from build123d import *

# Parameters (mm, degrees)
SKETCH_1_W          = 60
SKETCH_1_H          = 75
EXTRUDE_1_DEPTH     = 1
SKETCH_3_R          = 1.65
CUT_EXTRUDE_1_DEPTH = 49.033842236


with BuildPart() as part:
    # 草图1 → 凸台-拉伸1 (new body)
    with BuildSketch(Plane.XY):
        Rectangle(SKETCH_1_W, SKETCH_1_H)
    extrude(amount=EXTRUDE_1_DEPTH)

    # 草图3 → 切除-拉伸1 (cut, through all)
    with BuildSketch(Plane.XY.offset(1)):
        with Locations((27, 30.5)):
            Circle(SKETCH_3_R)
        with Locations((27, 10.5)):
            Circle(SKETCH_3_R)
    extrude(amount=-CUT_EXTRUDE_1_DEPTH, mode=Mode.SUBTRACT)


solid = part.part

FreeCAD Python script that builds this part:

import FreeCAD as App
import Part
import Sketcher
from FreeCAD import Vector
Q = App.Units.Quantity

doc = App.newDocument("Part")
params = doc.addObject("Spreadsheet::Sheet", "Params")
for row, (alias, value) in enumerate([
    ("sketch1_width", "60 mm"),
    ("sketch1_height", "75 mm"),
    ("pad1_length", "1 mm"),
    ("sketch2_diameter", "3.3 mm"),
], start=1):
    params.set(f"A{row}", alias)
    params.set(f"B{row}", "=" + value)
    params.setAlias(f"B{row}", alias)

body = doc.addObject("PartDesign::Body", "Body")

sketch1 = body.newObject("Sketcher::SketchObject", "Sketch")
sketch1.AttachmentSupport = (doc.getObject("XY_Plane"), [""])
sketch1.MapMode = "FlatFace"
sketch1.addGeometry([
    Part.LineSegment(Vector(-30, 38, 0), Vector(-30, -38, 0)),
    Part.LineSegment(Vector(-30, -38, 0), Vector(30, -38, 0)),
    Part.LineSegment(Vector(30, -38, 0), Vector(30, 38, 0)),
    Part.LineSegment(Vector(30, 38, 0), Vector(-30, 38, 0)),
], False)
sketch1.addConstraint([
    Sketcher.Constraint("Coincident", 0, 2, 1, 1),
    Sketcher.Constraint("Coincident", 1, 2, 2, 1),
    Sketcher.Constraint("Coincident", 2, 2, 3, 1),
    Sketcher.Constraint("Coincident", 3, 2, 0, 1),
    Sketcher.Constraint("Vertical", 0),
    Sketcher.Constraint("Horizontal", 1),
    Sketcher.Constraint("Vertical", 2),
    Sketcher.Constraint("Horizontal", 3),
    Sketcher.Constraint("Symmetric", 0, 2, 2, 2, -1, 1),
    Sketcher.Constraint("DistanceX", 1, 1, 1, 2, Q("60 mm")),
    Sketcher.Constraint("DistanceY", 0, 2, 0, 1, Q("75 mm")),
])
sketch1.setExpression("Constraints[9]", "Params.sketch1_width")
sketch1.setExpression("Constraints[10]", "Params.sketch1_height")
pad1 = body.newObject("PartDesign::Pad", "Pad")
pad1.Profile = sketch1
pad1.setExpression("Length", "Params.pad1_length")

sketch2 = body.newObject("Sketcher::SketchObject", "Sketch001")
sketch2.AttachmentSupport = (doc.getObject("XY_Plane"), [""])
sketch2.MapMode = "FlatFace"
sketch2.AttachmentOffset = App.Placement(Vector(0, 0, 1), App.Rotation())
sketch2.addGeometry([
    Part.Circle(Vector(27, 30.5, 0), Vector(0, 0, 1), 1.6),
    Part.Circle(Vector(27, 10.5, 0), Vector(0, 0, 1), 1.6),
], False)
sketch2.addConstraint([
    Sketcher.Constraint("Equal", 0, 1),
    Sketcher.Constraint("Vertical", 0, 3, 1, 3),
    Sketcher.Constraint("Diameter", 0, Q("3.3 mm")),
    Sketcher.Constraint("DistanceX", -1, 1, 0, 3, Q("27 mm")),
    Sketcher.Constraint("DistanceY", 1, 3, 0, 3, Q("20 mm")),
    Sketcher.Constraint("DistanceY", -1, 1, 0, 3, Q("30.5 mm")),
])
sketch2.setExpression("Constraints[2]", "Params.sketch2_diameter")
pocket1 = body.newObject("PartDesign::Pocket", "Pocket")
pocket1.Profile = sketch2
pocket1.Type = "ThroughAll"

doc.recompute()
